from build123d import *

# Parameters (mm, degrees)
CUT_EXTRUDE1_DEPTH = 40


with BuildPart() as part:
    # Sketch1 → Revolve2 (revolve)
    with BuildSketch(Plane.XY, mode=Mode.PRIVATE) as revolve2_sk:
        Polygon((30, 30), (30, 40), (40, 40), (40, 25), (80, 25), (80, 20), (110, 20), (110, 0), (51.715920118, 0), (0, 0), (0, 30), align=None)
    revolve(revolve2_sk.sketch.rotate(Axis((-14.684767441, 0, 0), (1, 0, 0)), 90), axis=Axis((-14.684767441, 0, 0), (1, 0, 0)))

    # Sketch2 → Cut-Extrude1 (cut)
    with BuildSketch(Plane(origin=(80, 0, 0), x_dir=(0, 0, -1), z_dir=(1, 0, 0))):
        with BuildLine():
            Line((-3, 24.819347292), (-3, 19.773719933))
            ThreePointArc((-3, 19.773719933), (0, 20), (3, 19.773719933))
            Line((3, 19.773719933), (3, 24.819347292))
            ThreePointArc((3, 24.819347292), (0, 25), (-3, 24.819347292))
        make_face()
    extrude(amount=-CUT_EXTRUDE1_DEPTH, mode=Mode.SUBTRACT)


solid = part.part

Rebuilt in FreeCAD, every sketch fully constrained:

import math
import FreeCAD as App
import Part
import Sketcher
from FreeCAD import Vector
Q = App.Units.Quantity


def add_polygon(sketch, points):
    """Adds a closed chain of lines whose ends are joined by coincident constraints."""
    first, n = sketch.GeometryCount, len(points)
    for a, b in zip(points, points[1:] + points[:1]):
        sketch.addGeometry(Part.LineSegment(App.Vector(*a, 0), App.Vector(*b, 0)), False)
    for i in range(n):
        sketch.addConstraint(Sketcher.Constraint("Coincident", first + i, 2, first + (i + 1) % n, 1))

doc = App.newDocument("Part")
body = doc.addObject("PartDesign::Body", "Body")

# Sketch on XY plane
sketch1 = body.newObject("Sketcher::SketchObject", "Sketch")
sketch1.AttachmentSupport = (doc.getObject("XY_Plane"), [""])
sketch1.MapMode = "FlatFace"
add_polygon(sketch1, [(30, 40), (30, 30), (0, 30), (0, 0), (110, 0), (110, 20), (80, 20), (80, 25), (40, 25), (40, 40)])  # lines 0-9
sketch1.addConstraint(Sketcher.Constraint("Vertical", 0))
sketch1.addConstraint(Sketcher.Constraint("Horizontal", 1))
sketch1.addConstraint(Sketcher.Constraint("Vertical", 2))
sketch1.addConstraint(Sketcher.Constraint("Horizontal", 3))
sketch1.addConstraint(Sketcher.Constraint("Vertical", 4))
sketch1.addConstraint(Sketcher.Constraint("Horizontal", 5))
sketch1.addConstraint(Sketcher.Constraint("Vertical", 6))
sketch1.addConstraint(Sketcher.Constraint("Horizontal", 7))
sketch1.addConstraint(Sketcher.Constraint("Vertical", 8))
sketch1.addConstraint(Sketcher.Constraint("Horizontal", 9))
sketch1.addConstraint(Sketcher.Constraint("Coincident", 2, 2, -1, 1))
sketch1.addConstraint(Sketcher.Constraint("Equal", 1, 5))
sketch1.addConstraint(Sketcher.Constraint("Equal", 9, 0))
sketch1.addConstraint(Sketcher.Constraint("Equal", 5, 2))
sketch1.addConstraint(Sketcher.Constraint("DistanceX", 1, 2, 1, 1, Q("30 mm")))
sketch1.addConstraint(Sketcher.Constraint("DistanceX", 3, 1, 3, 2, Q("110 mm")))
sketch1.addConstraint(Sketcher.Constraint("DistanceX", 7, 2, 7, 1, Q("40 mm")))
sketch1.addConstraint(Sketcher.Constraint("DistanceY", 4, 1, 4, 2, Q("20 mm")))
sketch1.addConstraint(Sketcher.Constraint("DistanceY", 6, 1, 6, 2, Q("5 mm")))
revolution = body.newObject("PartDesign::Revolution", "Revolution")
revolution.Profile = sketch1
revolution.ReferenceAxis = (sketch1, ["H_Axis"])
revolution.Angle = 360

# Sketch on YZ plane
sketch2 = body.newObject("Sketcher::SketchObject", "Sketch001")
sketch2.AttachmentSupport = (doc.getObject("YZ_Plane"), [""])
sketch2.MapMode = "FlatFace"
sketch2.AttachmentOffset = App.Placement(Vector(0, 0, 80), App.Rotation())
sketch2.addGeometry(Part.LineSegment(Vector(25, 3, 0), Vector(20, 3, 0)), False)
sketch2.addGeometry(Part.ArcOfCircle(Part.Circle(Vector(0, 0, 0), Vector(0, 0, 1), 20), math.radians(-8.63), math.radians(8.63)), False)
sketch2.addGeometry(Part.LineSegment(Vector(20, -3, 0), Vector(25, -3, 0)), False)
sketch2.addGeometry(Part.ArcOfCircle(Part.Circle(Vector(0, 0, 0), Vector(0, 0, 1), 25), math.radians(-6.89), math.radians(6.89)), False)
sketch2.addConstraint(Sketcher.Constraint("Coincident", 0, 2, 1, 2))
sketch2.addConstraint(Sketcher.Constraint("Coincident", 1, 1, 2, 1))
sketch2.addConstraint(Sketcher.Constraint("Coincident", 2, 2, 3, 1))
sketch2.addConstraint(Sketcher.Constraint("Coincident", 3, 2, 0, 1))
sketch2.addConstraint(Sketcher.Constraint("Horizontal", 0))
sketch2.addConstraint(Sketcher.Constraint("Horizontal", 2))
sketch2.addConstraint(Sketcher.Constraint("Coincident", 1, 3, -1, 1))
sketch2.addConstraint(Sketcher.Constraint("Coincident", 3, 3, -1, 1))
sketch2.addConstraint(Sketcher.Constraint("Vertical", 0, 2, 1, 1))
sketch2.addConstraint(Sketcher.Constraint("Radius", 1, Q("20 mm")))
sketch2.addConstraint(Sketcher.Constraint("Radius", 3, Q("25 mm")))
sketch2.addConstraint(Sketcher.Constraint("DistanceY", -1, 1, 0, 2, Q("3 mm")))
pocket1 = body.newObject("PartDesign::Pocket", "Pocket")
pocket1.Profile = sketch2
pocket1.Length = 40

doc.recompute()
